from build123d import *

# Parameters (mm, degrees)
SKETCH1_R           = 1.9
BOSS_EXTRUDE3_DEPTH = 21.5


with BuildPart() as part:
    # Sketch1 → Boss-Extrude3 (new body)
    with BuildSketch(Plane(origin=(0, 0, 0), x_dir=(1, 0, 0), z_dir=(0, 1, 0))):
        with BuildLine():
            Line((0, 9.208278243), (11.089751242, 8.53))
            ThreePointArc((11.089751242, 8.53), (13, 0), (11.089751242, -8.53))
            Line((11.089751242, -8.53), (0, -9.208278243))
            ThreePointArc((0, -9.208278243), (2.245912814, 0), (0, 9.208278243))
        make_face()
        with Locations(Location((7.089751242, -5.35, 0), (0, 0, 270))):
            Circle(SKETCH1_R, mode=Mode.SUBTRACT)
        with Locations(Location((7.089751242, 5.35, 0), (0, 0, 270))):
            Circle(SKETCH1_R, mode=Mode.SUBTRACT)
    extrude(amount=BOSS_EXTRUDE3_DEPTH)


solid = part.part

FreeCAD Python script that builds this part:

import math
import FreeCAD as App
import Part
import Sketcher
Q = App.Units.Quantity

doc = App.newDocument("Part")
body = doc.addObject("PartDesign::Body", "Body")

sketch1 = body.newObject("Sketcher::SketchObject", "Sketch")
sketch1.AttachmentSupport = (doc.getObject("XZ_Plane"), [""])
sketch1.MapMode = "FlatFace"
sketch1.addGeometry(Part.LineSegment(App.Vector(11.089751, -8.53, 0), App.Vector(0, -9.208278, 0)), False)
sketch1.addGeometry(Part.ArcOfCircle(Part.Circle(App.Vector(-17.754087, 0, 0), App.Vector(0, 0, 1), 20), math.radians(-27.41382), math.radians(27.41382)), False)
sketch1.addGeometry(Part.LineSegment(App.Vector(0, 9.208278, 0), App.Vector(11.089751, 8.53, 0)), False)
sketch1.addGeometry(Part.ArcOfCircle(Part.Circle(App.Vector(-7, 0, 0), App.Vector(0, 0, 1), 20), math.radians(-25.245646), math.radians(25.245646)), False)
sketch1.addGeometry(Part.Circle(App.Vector(7.089751, 5.35, 0), App.Vector(0, 0, 1), 1.9), False)
sketch1.addGeometry(Part.Circle(App.Vector(7.089751, -5.35, 0), App.Vector(0, 0, 1), 1.9), False)
sketch1.addConstraint(Sketcher.Constraint("Coincident", 0, 2, 1, 1))
sketch1.addConstraint(Sketcher.Constraint("Coincident", 1, 2, 2, 1))
sketch1.addConstraint(Sketcher.Constraint("Coincident", 2, 2, 3, 2))
sketch1.addConstraint(Sketcher.Constraint("Coincident", 3, 1, 0, 1))
sketch1.addConstraint(Sketcher.Constraint("Equal", 1, 3))
sketch1.addConstraint(Sketcher.Constraint("Equal", 4, 5))
sketch1.addConstraint(Sketcher.Constraint("Symmetric", 0, 2, 1, 2, -1, 1))
sketch1.addConstraint(Sketcher.Constraint("Symmetric", 4, 3, 5, 3, -1))
sketch1.addConstraint(Sketcher.Constraint("Symmetric", 2, 2, 3, 1, -1))
sketch1.addConstraint(Sketcher.Constraint("PointOnObject", 1, 3, -1))
sketch1.addConstraint(Sketcher.Constraint("Radius", 1, 20.0))
sketch1.addConstraint(Sketcher.Constraint("Diameter", 4, 3.8))
sketch1.addConstraint(Sketcher.Constraint("DistanceX", 3, 3, -1, 1, 7.0))
sketch1.addConstraint(Sketcher.Constraint("Angle", 0, Q("-176.5 deg")))
sketch1.addConstraint(Sketcher.Constraint("DistanceX", 4, 3, 2, 2, 4.0))
sketch1.addConstraint(Sketcher.Constraint("DistanceY", 5, 3, 4, 3, 10.7))
sketch1.addConstraint(Sketcher.Constraint("DistanceY", -1, 1, 2, 2, 8.53))
pad1 = body.newObject("PartDesign::Pad", "Pad")
pad1.Profile = sketch1
pad1.Length = 21.5
pad1.Reversed = True

doc.recompute()
